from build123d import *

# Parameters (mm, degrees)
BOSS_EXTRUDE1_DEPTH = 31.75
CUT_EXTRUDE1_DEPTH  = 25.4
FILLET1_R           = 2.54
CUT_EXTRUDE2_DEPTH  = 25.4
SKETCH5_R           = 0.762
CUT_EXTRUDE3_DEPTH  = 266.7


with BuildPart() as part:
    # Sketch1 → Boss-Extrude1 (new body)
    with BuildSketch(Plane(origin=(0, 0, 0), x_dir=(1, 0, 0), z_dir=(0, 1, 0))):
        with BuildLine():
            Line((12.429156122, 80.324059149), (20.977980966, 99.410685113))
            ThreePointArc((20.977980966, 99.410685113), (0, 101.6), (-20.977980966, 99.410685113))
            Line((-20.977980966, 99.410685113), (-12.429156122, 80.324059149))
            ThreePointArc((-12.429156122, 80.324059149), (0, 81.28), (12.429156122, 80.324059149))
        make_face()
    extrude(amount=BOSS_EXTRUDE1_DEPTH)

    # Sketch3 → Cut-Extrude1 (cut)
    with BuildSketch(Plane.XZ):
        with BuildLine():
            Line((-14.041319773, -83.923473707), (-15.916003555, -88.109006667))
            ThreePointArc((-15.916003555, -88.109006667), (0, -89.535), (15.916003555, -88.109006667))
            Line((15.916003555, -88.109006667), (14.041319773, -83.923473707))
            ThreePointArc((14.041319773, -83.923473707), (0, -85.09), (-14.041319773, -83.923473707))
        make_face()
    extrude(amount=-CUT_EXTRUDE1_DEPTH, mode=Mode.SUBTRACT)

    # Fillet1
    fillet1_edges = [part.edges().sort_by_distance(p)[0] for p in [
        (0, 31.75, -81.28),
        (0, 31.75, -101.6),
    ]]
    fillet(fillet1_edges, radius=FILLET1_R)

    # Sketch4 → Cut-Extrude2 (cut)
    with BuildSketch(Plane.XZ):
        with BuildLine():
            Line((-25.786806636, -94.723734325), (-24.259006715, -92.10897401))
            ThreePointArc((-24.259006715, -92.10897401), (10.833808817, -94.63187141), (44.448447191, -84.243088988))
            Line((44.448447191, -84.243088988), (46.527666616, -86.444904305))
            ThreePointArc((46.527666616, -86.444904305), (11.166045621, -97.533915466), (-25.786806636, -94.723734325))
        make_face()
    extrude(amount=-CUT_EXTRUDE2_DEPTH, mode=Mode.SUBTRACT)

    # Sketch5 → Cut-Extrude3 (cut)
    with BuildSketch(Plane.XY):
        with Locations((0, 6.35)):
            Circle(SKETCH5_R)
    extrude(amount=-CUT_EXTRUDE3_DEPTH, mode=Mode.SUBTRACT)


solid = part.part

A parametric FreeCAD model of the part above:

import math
import FreeCAD as App
import Part
import Sketcher
from FreeCAD import Vector
Q = App.Units.Quantity


def edges_at(feature, points):
    """Names of the edges that pass closest to the given points."""
    edges = feature.Shape.Edges
    near = lambda p: min(range(len(edges)), key=lambda i: edges[i].distToShape(Part.Vertex(*p))[0])
    return sorted({f"Edge{near(p) + 1}" for p in points})

doc = App.newDocument("Part")
params = doc.addObject("Spreadsheet::Sheet", "Params")
for row, (alias, value) in enumerate([
    ("sketch1_radius", "4 in"),
    ("sketch1_radius2", "3.2 in"),
    ("pad1_length", "1.25 in"),
    ("sketch2_radius", "3.35 in"),
    ("sketch2_radius2", "3.525 in"),
    ("pocket1_length", "1 in"),
    ("fillet_radius", "0.1 in"),
    ("sketch3_radius", "3.75 in"),
    ("sketch3_radius2", "3.865 in"),
    ("pocket2_length", "1 in"),
    ("sketch4_diameter", "0.06 in"),
    ("pocket3_length", "10.5 in"),
], start=1):
    params.set(f"A{row}", alias)
    params.set(f"B{row}", "=" + value)
    params.setAlias(f"B{row}", alias)

body = doc.addObject("PartDesign::Body", "Body")

sketch1 = body.newObject("Sketcher::SketchObject", "Sketch")
sketch1.AttachmentSupport = (doc.getObject("XZ_Plane"), [""])
sketch1.MapMode = "FlatFace"
sketch1.addGeometry([
    Part.LineSegment(Vector(12.429156, -80.324059, 0), Vector(20.977981, -99.410685, 0)),
    Part.ArcOfCircle(Part.Circle(Vector(0, 0, 0), Vector(0, 0, 1), 101.6), math.radians(-101.915928), math.radians(-78.084072)),
    Part.LineSegment(Vector(-20.977981, -99.410685, 0), Vector(-12.429156, -80.324059, 0)),
    Part.ArcOfCircle(Part.Circle(Vector(0, 0, 0), Vector(0, 0, 1), 81.28), math.radians(-98.796053), math.radians(-81.203947)),
], False)
sketch1.addConstraint([
    Sketcher.Constraint("Coincident", 0, 2, 1, 2),
    Sketcher.Constraint("Coincident", 1, 1, 2, 1),
    Sketcher.Constraint("Coincident", 2, 2, 3, 1),
    Sketcher.Constraint("Coincident", 3, 2, 0, 1),
    Sketcher.Constraint("Coincident", 1, 3, -1, 1),
    Sketcher.Constraint("Coincident", 3, 3, -1, 1),
    Sketcher.Constraint("Horizontal", 0, 2, 1, 1),
    Sketcher.Constraint("Horizontal", 2, 2, 3, 2),
    Sketcher.Constraint("Radius", 1, Q("4 in")),
    Sketcher.Constraint("Radius", 3, Q("3.2 in")),
    Sketcher.Constraint("DistanceX", -1, 1, 0, 2, 20.977981),
    Sketcher.Constraint("DistanceY", 2, 2, -1, 1, 80.324059),
])
sketch1.setExpression("Constraints[8]", "Params.sketch1_radius")
sketch1.setExpression("Constraints[9]", "Params.sketch1_radius2")
pad1 = body.newObject("PartDesign::Pad", "Pad")
pad1.Profile = sketch1
pad1.setExpression("Length", "Params.pad1_length")
pad1.Reversed = True

sketch2 = body.newObject("Sketcher::SketchObject", "Sketch001")
sketch2.AttachmentSupport = (doc.getObject("XZ_Plane"), [""])
sketch2.MapMode = "FlatFace"
sketch2.addGeometry([
    Part.LineSegment(Vector(-14.04132, -83.923474, 0), Vector(-15.916004, -88.109007, 0)),
    Part.ArcOfCircle(Part.Circle(Vector(0, 0, 0), Vector(0, 0, 1), 89.535), math.radians(-100.239484), math.radians(-79.760516)),
    Part.LineSegment(Vector(15.916004, -88.109007, 0), Vector(14.04132, -83.923474, 0)),
    Part.ArcOfCircle(Part.Circle(Vector(0, 0, 0), Vector(0, 0, 1), 85.09), math.radians(-99.498238), math.radians(-80.501762)),
], False)
sketch2.addConstraint([
    Sketcher.Constraint("Coincident", 0, 2, 1, 1),
    Sketcher.Constraint("Coincident", 1, 2, 2, 1),
    Sketcher.Constraint("Coincident", 2, 2, 3, 2),
    Sketcher.Constraint("Coincident", 3, 1, 0, 1),
    Sketcher.Constraint("Coincident", 1, 3, -1, 1),
    Sketcher.Constraint("Coincident", 3, 3, -1, 1),
    Sketcher.Constraint("Horizontal", 0, 2, 1, 2),
    Sketcher.Constraint("Horizontal", 2, 2, 3, 1),
    Sketcher.Constraint("Radius", 3, Q("3.35 in")),
    Sketcher.Constraint("Radius", 1, Q("3.525 in")),
    Sketcher.Constraint("Distance", 0, 4.586189),
    Sketcher.Constraint("DistanceX", -1, 1, 2, 2, 14.04132),
])
sketch2.setExpression("Constraints[8]", "Params.sketch2_radius")
sketch2.setExpression("Constraints[9]", "Params.sketch2_radius2")
pocket1 = body.newObject("PartDesign::Pocket", "Pocket")
pocket1.Profile = sketch2
pocket1.setExpression("Length", "Params.pocket1_length")
doc.recompute()

fillet = body.newObject("PartDesign::Fillet", "Fillet")
fillet.Base = (pocket1, edges_at(pocket1, [(0, 31.75, -81.28), (0, 31.75, -101.6)]))
fillet.setExpression("Radius", "Params.fillet_radius")

sketch3 = body.newObject("Sketcher::SketchObject", "Sketch002")
sketch3.AttachmentSupport = (doc.getObject("XZ_Plane"), [""])
sketch3.MapMode = "FlatFace"
sketch3.addGeometry([
    Part.LineSegment(Vector(-24.259007, -92.108974, 0), Vector(-25.786807, -94.723734, 0)),
    Part.ArcOfCircle(Part.Circle(Vector(0, 0, 0), Vector(0, 0, 1), 98.171), math.radians(-105.228689), math.radians(-61.709311)),
    Part.LineSegment(Vector(46.527667, -86.444904, 0), Vector(44.448447, -84.243089, 0)),
    Part.ArcOfCircle(Part.Circle(Vector(0, 0, 0), Vector(0, 0, 1), 95.25), math.radians(-104.755083), math.radians(-62.182917)),
], False)
sketch3.addConstraint([
    Sketcher.Constraint("Coincident", 0, 2, 1, 1),
    Sketcher.Constraint("Coincident", 1, 2, 2, 1),
    Sketcher.Constraint("Coincident", 2, 2, 3, 2),
    Sketcher.Constraint("Coincident", 3, 1, 0, 1),
    Sketcher.Constraint("Coincident", 1, 3, -1, 1),
    Sketcher.Constraint("Coincident", 3, 3, -1, 1),
    Sketcher.Constraint("Equal", 0, 2),
    Sketcher.Constraint("Radius", 3, Q("3.75 in")),
    Sketcher.Constraint("Radius", 1, Q("3.865 in")),
    Sketcher.Constraint("DistanceX", 0, 2, 3, 1, 1.5278),
    Sketcher.Constraint("Distance", 0, 3.02839),
    Sketcher.Constraint("DistanceY", 2, 2, -1, 1, 84.243089),
])
sketch3.setExpression("Constraints[7]", "Params.sketch3_radius")
sketch3.setExpression("Constraints[8]", "Params.sketch3_radius2")
pocket2 = body.newObject("PartDesign::Pocket", "Pocket001")
pocket2.Profile = sketch3
pocket2.setExpression("Length", "Params.pocket2_length")

sketch4 = body.newObject("Sketcher::SketchObject", "Sketch003")
sketch4.AttachmentSupport = (doc.getObject("XY_Plane"), [""])
sketch4.MapMode = "FlatFace"
sketch4.addGeometry(Part.Circle(Vector(0, 6.35, 0), Vector(0, 0, 1), 0.762), False)
sketch4.addConstraint([
    Sketcher.Constraint("PointOnObject", 0, 3, -2),
    Sketcher.Constraint("Diameter", 0, Q("0.06 in")),
    Sketcher.Constraint("DistanceY", -1, 1, 0, 3, Q("0.25 in")),
])
sketch4.setExpression("Constraints[1]", "Params.sketch4_diameter")
pocket3 = body.newObject("PartDesign::Pocket", "Pocket002")
pocket3.Profile = sketch4
pocket3.setExpression("Length", "Params.pocket3_length")

doc.recompute()
